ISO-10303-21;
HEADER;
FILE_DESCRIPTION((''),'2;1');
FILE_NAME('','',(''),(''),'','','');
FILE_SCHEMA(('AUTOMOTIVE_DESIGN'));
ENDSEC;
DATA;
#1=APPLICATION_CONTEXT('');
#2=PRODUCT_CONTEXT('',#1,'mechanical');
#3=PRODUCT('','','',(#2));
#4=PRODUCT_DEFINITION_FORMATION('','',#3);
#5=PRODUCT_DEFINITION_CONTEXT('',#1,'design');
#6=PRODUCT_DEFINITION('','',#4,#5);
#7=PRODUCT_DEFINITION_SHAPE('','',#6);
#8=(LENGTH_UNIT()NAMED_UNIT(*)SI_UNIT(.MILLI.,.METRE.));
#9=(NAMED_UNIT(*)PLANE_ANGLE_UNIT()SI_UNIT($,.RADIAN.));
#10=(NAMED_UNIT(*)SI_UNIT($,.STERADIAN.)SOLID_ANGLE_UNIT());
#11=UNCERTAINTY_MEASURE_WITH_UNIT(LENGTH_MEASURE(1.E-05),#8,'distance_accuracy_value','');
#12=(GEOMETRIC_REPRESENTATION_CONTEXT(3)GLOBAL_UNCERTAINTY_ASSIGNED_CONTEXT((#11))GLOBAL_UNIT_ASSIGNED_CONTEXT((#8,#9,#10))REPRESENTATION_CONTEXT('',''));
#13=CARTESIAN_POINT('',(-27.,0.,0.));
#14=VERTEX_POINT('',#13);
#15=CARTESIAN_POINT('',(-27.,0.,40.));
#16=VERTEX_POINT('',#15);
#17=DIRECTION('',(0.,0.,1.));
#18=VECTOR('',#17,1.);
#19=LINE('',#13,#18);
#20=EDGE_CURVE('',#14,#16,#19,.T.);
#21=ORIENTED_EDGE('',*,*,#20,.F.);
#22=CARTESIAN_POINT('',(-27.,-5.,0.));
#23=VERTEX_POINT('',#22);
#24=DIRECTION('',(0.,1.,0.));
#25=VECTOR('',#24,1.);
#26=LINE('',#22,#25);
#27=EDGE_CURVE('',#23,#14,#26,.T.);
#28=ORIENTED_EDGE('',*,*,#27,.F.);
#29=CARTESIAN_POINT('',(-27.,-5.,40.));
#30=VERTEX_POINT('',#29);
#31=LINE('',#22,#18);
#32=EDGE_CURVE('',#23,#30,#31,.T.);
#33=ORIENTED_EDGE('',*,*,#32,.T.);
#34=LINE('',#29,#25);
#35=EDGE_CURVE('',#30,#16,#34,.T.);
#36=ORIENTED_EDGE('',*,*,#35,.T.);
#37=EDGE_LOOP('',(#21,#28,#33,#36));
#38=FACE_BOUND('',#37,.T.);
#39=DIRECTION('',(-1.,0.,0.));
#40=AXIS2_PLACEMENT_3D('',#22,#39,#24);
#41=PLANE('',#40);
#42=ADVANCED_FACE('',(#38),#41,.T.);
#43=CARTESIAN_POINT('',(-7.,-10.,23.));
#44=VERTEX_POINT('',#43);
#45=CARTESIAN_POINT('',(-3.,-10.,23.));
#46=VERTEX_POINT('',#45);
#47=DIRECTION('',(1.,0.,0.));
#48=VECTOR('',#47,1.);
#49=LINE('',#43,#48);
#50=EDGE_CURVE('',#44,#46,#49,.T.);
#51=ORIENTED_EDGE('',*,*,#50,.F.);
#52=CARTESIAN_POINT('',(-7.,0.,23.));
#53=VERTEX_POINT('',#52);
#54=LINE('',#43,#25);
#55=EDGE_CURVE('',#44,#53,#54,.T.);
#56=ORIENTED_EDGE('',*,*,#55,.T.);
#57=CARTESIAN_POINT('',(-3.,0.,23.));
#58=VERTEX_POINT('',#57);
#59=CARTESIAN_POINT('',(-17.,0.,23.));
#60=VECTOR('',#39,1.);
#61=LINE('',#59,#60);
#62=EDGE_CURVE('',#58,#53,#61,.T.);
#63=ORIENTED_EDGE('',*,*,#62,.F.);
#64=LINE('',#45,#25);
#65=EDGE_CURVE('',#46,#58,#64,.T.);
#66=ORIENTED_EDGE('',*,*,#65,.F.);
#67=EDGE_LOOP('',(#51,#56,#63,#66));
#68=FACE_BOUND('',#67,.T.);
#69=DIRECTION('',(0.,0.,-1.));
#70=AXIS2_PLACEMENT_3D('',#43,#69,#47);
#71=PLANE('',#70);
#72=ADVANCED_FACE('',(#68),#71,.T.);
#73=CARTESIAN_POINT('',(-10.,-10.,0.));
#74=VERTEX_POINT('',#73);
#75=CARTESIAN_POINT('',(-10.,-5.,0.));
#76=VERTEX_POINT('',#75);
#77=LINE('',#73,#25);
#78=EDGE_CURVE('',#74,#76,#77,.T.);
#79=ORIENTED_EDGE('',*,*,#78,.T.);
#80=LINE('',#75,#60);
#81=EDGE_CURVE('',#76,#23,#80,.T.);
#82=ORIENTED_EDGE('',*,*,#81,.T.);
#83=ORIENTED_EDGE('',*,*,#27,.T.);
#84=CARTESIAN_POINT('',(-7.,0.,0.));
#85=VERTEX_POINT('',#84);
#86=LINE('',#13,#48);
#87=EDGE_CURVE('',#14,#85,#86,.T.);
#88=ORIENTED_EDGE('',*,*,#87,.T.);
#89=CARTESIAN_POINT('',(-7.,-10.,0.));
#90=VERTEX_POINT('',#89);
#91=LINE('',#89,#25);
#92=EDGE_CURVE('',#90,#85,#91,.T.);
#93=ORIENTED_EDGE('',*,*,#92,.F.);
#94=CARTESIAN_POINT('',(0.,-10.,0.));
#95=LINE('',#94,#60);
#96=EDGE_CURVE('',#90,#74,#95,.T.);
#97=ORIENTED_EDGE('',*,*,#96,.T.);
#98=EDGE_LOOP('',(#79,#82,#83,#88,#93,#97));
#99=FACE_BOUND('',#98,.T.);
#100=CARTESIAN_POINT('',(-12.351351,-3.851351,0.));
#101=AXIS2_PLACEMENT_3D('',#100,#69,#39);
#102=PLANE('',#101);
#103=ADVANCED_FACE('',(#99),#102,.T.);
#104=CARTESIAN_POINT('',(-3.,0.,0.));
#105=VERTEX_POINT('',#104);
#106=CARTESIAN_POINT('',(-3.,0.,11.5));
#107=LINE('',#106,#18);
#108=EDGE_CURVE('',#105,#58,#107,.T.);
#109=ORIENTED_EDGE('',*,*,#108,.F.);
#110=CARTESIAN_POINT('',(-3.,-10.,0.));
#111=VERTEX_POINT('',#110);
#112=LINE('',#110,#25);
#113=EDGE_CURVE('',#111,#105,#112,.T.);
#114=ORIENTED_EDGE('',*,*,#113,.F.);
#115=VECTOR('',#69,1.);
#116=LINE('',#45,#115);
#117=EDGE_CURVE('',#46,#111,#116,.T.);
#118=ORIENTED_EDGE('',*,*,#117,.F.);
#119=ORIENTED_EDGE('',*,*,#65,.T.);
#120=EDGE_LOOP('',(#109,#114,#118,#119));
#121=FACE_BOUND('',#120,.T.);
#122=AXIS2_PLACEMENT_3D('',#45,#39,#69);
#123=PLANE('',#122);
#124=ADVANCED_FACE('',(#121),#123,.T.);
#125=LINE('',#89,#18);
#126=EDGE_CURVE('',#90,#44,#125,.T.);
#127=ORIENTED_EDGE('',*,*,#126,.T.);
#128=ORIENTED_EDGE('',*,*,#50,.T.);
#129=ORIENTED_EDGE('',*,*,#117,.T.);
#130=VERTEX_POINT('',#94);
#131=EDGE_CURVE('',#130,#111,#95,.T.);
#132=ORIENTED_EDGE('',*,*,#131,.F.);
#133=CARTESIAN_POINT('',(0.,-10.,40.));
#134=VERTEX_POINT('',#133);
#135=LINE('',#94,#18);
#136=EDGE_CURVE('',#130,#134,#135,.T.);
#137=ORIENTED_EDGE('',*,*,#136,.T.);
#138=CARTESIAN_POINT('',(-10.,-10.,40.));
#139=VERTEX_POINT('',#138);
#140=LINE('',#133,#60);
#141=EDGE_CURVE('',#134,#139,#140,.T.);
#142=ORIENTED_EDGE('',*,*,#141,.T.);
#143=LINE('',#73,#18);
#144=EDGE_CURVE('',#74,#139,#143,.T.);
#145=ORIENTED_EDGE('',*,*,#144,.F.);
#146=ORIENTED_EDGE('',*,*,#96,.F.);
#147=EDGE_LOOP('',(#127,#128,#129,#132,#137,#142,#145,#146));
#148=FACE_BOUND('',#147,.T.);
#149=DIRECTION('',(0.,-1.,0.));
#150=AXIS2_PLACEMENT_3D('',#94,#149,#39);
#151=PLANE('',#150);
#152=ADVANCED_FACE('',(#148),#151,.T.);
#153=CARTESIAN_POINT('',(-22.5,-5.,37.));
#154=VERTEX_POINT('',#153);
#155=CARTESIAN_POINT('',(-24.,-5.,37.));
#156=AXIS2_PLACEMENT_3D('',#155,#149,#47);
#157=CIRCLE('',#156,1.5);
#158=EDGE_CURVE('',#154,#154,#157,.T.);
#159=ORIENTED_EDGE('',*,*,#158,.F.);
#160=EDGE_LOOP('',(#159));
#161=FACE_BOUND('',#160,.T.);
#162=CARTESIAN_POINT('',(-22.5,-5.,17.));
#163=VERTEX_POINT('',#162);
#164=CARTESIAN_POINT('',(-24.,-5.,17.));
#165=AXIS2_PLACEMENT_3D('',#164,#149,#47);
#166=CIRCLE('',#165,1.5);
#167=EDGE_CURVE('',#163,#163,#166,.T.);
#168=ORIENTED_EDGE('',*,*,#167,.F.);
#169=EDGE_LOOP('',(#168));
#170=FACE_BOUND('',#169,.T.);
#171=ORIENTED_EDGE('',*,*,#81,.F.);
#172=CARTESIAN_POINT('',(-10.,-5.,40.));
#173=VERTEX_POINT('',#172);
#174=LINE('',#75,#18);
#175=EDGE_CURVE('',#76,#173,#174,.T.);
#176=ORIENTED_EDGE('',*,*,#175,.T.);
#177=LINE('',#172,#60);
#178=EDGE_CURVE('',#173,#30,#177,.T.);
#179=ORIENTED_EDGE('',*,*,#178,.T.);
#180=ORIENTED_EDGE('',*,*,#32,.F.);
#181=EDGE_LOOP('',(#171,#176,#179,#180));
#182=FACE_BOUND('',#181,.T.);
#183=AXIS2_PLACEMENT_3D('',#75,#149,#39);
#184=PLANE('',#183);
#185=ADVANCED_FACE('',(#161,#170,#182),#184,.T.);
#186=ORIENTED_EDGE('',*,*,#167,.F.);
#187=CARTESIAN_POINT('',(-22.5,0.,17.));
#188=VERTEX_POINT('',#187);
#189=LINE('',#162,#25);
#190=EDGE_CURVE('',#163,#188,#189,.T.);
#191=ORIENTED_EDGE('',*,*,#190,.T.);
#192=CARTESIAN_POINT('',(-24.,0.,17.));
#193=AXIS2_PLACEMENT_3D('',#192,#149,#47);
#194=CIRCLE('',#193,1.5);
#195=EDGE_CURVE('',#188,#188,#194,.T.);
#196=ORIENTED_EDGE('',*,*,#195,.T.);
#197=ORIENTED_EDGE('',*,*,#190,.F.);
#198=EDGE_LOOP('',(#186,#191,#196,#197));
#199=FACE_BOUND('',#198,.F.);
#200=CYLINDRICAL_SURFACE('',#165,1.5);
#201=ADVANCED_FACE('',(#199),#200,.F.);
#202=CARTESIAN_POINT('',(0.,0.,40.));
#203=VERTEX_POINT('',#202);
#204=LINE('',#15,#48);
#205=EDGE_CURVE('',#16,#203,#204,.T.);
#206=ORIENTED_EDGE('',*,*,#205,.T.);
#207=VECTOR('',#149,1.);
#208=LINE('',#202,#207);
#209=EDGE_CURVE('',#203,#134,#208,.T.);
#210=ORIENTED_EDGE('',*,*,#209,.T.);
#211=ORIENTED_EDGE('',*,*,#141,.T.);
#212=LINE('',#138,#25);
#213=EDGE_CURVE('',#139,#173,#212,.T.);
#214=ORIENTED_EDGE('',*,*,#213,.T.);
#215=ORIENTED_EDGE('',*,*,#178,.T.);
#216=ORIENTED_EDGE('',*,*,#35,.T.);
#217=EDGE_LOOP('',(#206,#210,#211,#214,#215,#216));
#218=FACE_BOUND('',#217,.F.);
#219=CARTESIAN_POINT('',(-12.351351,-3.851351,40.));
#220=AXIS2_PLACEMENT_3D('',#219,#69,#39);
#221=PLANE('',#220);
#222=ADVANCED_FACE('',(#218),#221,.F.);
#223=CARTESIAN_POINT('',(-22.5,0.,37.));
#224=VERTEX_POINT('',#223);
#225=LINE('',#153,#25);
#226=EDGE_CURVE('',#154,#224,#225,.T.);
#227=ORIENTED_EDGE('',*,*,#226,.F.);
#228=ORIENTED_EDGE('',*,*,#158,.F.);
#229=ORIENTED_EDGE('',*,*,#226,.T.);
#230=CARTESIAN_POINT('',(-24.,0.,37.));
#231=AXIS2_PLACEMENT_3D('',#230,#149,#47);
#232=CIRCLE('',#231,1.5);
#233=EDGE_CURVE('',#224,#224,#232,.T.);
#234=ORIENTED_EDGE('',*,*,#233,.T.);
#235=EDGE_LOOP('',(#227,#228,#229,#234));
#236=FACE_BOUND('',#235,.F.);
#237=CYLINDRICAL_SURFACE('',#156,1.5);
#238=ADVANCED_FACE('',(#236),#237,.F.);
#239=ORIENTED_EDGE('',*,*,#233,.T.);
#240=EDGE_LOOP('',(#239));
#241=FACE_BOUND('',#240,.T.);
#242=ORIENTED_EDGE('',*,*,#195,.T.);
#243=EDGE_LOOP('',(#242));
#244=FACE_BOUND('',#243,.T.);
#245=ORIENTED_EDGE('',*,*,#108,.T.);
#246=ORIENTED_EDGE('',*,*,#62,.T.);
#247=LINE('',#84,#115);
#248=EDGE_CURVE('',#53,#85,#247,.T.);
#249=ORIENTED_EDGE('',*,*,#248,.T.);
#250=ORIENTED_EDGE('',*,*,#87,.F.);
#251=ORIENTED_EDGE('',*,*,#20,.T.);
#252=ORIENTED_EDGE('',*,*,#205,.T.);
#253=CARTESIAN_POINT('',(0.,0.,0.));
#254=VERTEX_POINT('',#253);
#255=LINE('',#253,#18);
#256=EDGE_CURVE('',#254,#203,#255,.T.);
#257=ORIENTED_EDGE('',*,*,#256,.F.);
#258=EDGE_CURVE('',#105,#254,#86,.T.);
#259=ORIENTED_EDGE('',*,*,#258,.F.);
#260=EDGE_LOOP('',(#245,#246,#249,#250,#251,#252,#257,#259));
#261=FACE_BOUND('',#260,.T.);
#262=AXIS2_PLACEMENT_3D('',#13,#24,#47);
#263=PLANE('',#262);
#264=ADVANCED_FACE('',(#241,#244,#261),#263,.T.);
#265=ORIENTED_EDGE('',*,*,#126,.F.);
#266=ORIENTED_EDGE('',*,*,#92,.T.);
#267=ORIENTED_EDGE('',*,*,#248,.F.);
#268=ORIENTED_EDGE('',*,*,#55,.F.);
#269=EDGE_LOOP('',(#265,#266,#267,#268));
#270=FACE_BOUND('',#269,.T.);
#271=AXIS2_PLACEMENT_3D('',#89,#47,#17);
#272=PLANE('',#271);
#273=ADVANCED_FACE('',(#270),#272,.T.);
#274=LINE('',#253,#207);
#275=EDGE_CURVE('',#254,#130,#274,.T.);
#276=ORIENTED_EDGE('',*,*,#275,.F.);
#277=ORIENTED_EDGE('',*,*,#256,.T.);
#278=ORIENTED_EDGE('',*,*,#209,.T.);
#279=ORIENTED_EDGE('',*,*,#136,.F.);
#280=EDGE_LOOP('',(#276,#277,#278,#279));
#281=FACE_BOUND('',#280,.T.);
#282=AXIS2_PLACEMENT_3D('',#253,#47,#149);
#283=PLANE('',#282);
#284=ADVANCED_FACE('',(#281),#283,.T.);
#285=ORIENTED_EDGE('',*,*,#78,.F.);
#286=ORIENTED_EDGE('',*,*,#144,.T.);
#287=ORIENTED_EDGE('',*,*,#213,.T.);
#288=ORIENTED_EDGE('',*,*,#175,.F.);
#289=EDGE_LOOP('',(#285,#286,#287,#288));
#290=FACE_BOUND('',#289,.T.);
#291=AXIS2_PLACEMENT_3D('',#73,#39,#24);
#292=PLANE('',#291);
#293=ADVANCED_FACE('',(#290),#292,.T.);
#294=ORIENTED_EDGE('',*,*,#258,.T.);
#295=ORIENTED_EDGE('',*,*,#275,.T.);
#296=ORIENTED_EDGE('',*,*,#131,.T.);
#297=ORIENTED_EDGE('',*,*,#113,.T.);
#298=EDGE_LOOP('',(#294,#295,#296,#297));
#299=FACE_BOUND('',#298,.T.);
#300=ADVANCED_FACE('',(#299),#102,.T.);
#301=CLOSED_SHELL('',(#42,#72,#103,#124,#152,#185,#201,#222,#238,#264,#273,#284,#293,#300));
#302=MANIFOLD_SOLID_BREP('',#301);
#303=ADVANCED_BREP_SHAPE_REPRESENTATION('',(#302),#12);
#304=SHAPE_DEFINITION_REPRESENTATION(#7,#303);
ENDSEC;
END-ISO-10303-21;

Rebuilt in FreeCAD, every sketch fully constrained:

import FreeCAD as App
import Part
import Sketcher
from FreeCAD import Vector
Q = App.Units.Quantity

doc = App.newDocument("Part")
body = doc.addObject("PartDesign::Body", "Body")

# Sketch on XY plane
sketch1 = doc.addObject("Sketcher::SketchObject", "Sketch")
body.addObject(sketch1)
sketch1.AttachmentSupport = (doc.XY_Plane, [""])
sketch1.MapMode = "FlatFace"
sketch1.addGeometry(Part.LineSegment(Vector(-27, -5, 0), Vector(-10, -5, 0)), False)
sketch1.addGeometry(Part.LineSegment(Vector(-10, -5, 0), Vector(-10, -10, 0)), False)
sketch1.addGeometry(Part.LineSegment(Vector(-10, -10, 0), Vector(0, -10, 0)), False)
sketch1.addGeometry(Part.LineSegment(Vector(0, -10, 0), Vector(0, 0, 0)), False)
sketch1.addGeometry(Part.LineSegment(Vector(0, 0, 0), Vector(-27, 0, 0)), False)
sketch1.addGeometry(Part.LineSegment(Vector(-27, 0, 0), Vector(-27, -5, 0)), False)
sketch1.addConstraint(Sketcher.Constraint("Coincident", 0, 2, 1, 1))
sketch1.addConstraint(Sketcher.Constraint("Coincident", 1, 2, 2, 1))
sketch1.addConstraint(Sketcher.Constraint("Coincident", 2, 2, 3, 1))
sketch1.addConstraint(Sketcher.Constraint("Coincident", 3, 2, 4, 1))
sketch1.addConstraint(Sketcher.Constraint("Coincident", 4, 2, 5, 1))
sketch1.addConstraint(Sketcher.Constraint("Coincident", 5, 2, 0, 1))
sketch1.addConstraint(Sketcher.Constraint("Horizontal", 0))
sketch1.addConstraint(Sketcher.Constraint("Vertical", 1))
sketch1.addConstraint(Sketcher.Constraint("Horizontal", 2))
sketch1.addConstraint(Sketcher.Constraint("Vertical", 3))
sketch1.addConstraint(Sketcher.Constraint("Horizontal", 4))
sketch1.addConstraint(Sketcher.Constraint("Vertical", 5))
sketch1.addConstraint(Sketcher.Constraint("Coincident", 3, 2, -1, 1))
sketch1.addConstraint(Sketcher.Constraint("Equal", 2, 3))
sketch1.addConstraint(Sketcher.Constraint("Equal", 1, 5))
sketch1.addConstraint(Sketcher.Constraint("DistanceX", 0, 1, 0, 2, Q("17 mm")))
sketch1.addConstraint(Sketcher.Constraint("DistanceX", 2, 1, 2, 2, Q("10 mm")))
pad1 = doc.addObject("PartDesign::Pad", "Pad")
body.addObject(pad1)
pad1.Profile = sketch1
pad1.Length = 40

# Sketch on XZ plane
sketch2 = doc.addObject("Sketcher::SketchObject", "Sketch001")
body.addObject(sketch2)
sketch2.AttachmentSupport = (doc.XZ_Plane, [""])
sketch2.MapMode = "FlatFace"
sketch2.AttachmentOffset = App.Placement(Vector(0, 0, 10), App.Rotation())
sketch2.addGeometry(Part.LineSegment(Vector(-7, 0, 0), Vector(-3, 0, 0)), False)
sketch2.addGeometry(Part.LineSegment(Vector(-3, 0, 0), Vector(-3, 23, 0)), False)
sketch2.addGeometry(Part.LineSegment(Vector(-3, 23, 0), Vector(-7, 23, 0)), False)
sketch2.addGeometry(Part.LineSegment(Vector(-7, 23, 0), Vector(-7, 0, 0)), False)
sketch2.addConstraint(Sketcher.Constraint("Coincident", 0, 2, 1, 1))
sketch2.addConstraint(Sketcher.Constraint("Coincident", 1, 2, 2, 1))
sketch2.addConstraint(Sketcher.Constraint("Coincident", 2, 2, 3, 1))
sketch2.addConstraint(Sketcher.Constraint("Coincident", 3, 2, 0, 1))
sketch2.addConstraint(Sketcher.Constraint("Horizontal", 0))
sketch2.addConstraint(Sketcher.Constraint("Vertical", 1))
sketch2.addConstraint(Sketcher.Constraint("Horizontal", 2))
sketch2.addConstraint(Sketcher.Constraint("Vertical", 3))
sketch2.addConstraint(Sketcher.Constraint("PointOnObject", 0, 2, -1))
sketch2.addConstraint(Sketcher.Constraint("DistanceX", 0, 1, 0, 2, Q("4 mm")))
sketch2.addConstraint(Sketcher.Constraint("DistanceY", 1, 1, 1, 2, Q("23 mm")))
sketch2.addConstraint(Sketcher.Constraint("DistanceX", 0, 2, -1, 1, Q("3 mm")))
pocket1 = doc.addObject("PartDesign::Pocket", "Pocket")
body.addObject(pocket1)
pocket1.Profile = sketch2
pocket1.Length = 50.2328

# Sketch on XZ plane
sketch3 = doc.addObject("Sketcher::SketchObject", "Sketch002")
body.addObject(sketch3)
sketch3.AttachmentSupport = (doc.XZ_Plane, [""])
sketch3.MapMode = "FlatFace"
sketch3.AttachmentOffset = App.Placement(Vector(0, 0, 5), App.Rotation())
sketch3.addGeometry(Part.Circle(Vector(-24, 37, 0), Vector(0, 0, 1), 1.5), False)
sketch3.addGeometry(Part.Circle(Vector(-24, 17, 0), Vector(0, 0, 1), 1.5), False)
sketch3.addConstraint(Sketcher.Constraint("Equal", 0, 1))
sketch3.addConstraint(Sketcher.Constraint("Vertical", 0, 3, 1, 3))
sketch3.addConstraint(Sketcher.Constraint("Diameter", 0, Q("3 mm")))
sketch3.addConstraint(Sketcher.Constraint("DistanceX", 0, 3, -1, 1, Q("24 mm")))
sketch3.addConstraint(Sketcher.Constraint("DistanceY", -1, 1, 0, 3, Q("37 mm")))
sketch3.addConstraint(Sketcher.Constraint("DistanceY", -1, 1, 1, 3, Q("17 mm")))
pocket2 = doc.addObject("PartDesign::Pocket", "Pocket001")
body.addObject(pocket2)
pocket2.Profile = sketch3
pocket2.Length = 58.7428

doc.recompute()
